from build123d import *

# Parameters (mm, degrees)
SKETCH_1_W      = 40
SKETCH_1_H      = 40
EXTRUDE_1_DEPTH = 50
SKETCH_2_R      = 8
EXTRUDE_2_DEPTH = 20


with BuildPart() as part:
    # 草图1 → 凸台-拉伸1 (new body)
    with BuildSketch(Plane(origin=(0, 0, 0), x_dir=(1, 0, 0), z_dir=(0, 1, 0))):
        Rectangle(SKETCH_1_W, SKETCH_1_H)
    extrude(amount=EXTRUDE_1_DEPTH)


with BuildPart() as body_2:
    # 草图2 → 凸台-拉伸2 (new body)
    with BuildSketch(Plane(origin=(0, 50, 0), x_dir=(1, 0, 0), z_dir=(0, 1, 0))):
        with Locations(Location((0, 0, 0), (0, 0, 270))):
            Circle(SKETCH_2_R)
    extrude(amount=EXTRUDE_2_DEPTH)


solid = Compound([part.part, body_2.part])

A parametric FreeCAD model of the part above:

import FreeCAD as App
import Part
import Sketcher

V = App.Vector


def add_polygon(sketch, points):
    """Adds a closed chain of lines whose ends are joined by coincident constraints."""
    first, n = sketch.GeometryCount, len(points)
    for a, b in zip(points, points[1:] + points[:1]):
        sketch.addGeometry(Part.LineSegment(App.Vector(*a, 0), App.Vector(*b, 0)), False)
    for i in range(n):
        sketch.addConstraint(Sketcher.Constraint("Coincident", first + i, 2, first + (i + 1) % n, 1))

doc = App.newDocument("Part")
body = doc.addObject("PartDesign::Body", "Body")

sketch1 = body.newObject("Sketcher::SketchObject", "Sketch")
sketch1.AttachmentSupport = (doc.getObject("XZ_Plane"), [""])
sketch1.MapMode = "FlatFace"
add_polygon(sketch1, [(-20, -20), (-20, 20), (20, 20), (20, -20)])
sketch1.addConstraint(Sketcher.Constraint("Vertical", 0))
sketch1.addConstraint(Sketcher.Constraint("Horizontal", 1))
sketch1.addConstraint(Sketcher.Constraint("Vertical", 2))
sketch1.addConstraint(Sketcher.Constraint("Horizontal", 3))
sketch1.addConstraint(Sketcher.Constraint("Symmetric", 0, 2, 2, 2, -1, 1))
sketch1.addConstraint(Sketcher.Constraint("Equal", 3, 0))
sketch1.addConstraint(Sketcher.Constraint("DistanceX", 1, 1, 1, 2, 40.0))
pad1 = body.newObject("PartDesign::Pad", "Pad")
pad1.Profile = sketch1
pad1.Length = 50
pad1.Reversed = True
body2 = doc.addObject("PartDesign::Body", "Body001")

sketch2 = body2.newObject("Sketcher::SketchObject", "Sketch001")
sketch2.AttachmentSupport = (doc.getObject("XZ_Plane001"), [""])
sketch2.MapMode = "FlatFace"
sketch2.AttachmentOffset = App.Placement(V(0, 0, -50), App.Rotation())
sketch2.addGeometry(Part.Circle(V(0, 0, 0), V(0, 0, 1), 8), False)
sketch2.addConstraint(Sketcher.Constraint("Coincident", 0, 3, -1, 1))
sketch2.addConstraint(Sketcher.Constraint("Diameter", 0, 16.0))
pad2 = body2.newObject("PartDesign::Pad", "Pad001")
pad2.Profile = sketch2
pad2.Length = 20
pad2.Reversed = True

doc.recompute()
